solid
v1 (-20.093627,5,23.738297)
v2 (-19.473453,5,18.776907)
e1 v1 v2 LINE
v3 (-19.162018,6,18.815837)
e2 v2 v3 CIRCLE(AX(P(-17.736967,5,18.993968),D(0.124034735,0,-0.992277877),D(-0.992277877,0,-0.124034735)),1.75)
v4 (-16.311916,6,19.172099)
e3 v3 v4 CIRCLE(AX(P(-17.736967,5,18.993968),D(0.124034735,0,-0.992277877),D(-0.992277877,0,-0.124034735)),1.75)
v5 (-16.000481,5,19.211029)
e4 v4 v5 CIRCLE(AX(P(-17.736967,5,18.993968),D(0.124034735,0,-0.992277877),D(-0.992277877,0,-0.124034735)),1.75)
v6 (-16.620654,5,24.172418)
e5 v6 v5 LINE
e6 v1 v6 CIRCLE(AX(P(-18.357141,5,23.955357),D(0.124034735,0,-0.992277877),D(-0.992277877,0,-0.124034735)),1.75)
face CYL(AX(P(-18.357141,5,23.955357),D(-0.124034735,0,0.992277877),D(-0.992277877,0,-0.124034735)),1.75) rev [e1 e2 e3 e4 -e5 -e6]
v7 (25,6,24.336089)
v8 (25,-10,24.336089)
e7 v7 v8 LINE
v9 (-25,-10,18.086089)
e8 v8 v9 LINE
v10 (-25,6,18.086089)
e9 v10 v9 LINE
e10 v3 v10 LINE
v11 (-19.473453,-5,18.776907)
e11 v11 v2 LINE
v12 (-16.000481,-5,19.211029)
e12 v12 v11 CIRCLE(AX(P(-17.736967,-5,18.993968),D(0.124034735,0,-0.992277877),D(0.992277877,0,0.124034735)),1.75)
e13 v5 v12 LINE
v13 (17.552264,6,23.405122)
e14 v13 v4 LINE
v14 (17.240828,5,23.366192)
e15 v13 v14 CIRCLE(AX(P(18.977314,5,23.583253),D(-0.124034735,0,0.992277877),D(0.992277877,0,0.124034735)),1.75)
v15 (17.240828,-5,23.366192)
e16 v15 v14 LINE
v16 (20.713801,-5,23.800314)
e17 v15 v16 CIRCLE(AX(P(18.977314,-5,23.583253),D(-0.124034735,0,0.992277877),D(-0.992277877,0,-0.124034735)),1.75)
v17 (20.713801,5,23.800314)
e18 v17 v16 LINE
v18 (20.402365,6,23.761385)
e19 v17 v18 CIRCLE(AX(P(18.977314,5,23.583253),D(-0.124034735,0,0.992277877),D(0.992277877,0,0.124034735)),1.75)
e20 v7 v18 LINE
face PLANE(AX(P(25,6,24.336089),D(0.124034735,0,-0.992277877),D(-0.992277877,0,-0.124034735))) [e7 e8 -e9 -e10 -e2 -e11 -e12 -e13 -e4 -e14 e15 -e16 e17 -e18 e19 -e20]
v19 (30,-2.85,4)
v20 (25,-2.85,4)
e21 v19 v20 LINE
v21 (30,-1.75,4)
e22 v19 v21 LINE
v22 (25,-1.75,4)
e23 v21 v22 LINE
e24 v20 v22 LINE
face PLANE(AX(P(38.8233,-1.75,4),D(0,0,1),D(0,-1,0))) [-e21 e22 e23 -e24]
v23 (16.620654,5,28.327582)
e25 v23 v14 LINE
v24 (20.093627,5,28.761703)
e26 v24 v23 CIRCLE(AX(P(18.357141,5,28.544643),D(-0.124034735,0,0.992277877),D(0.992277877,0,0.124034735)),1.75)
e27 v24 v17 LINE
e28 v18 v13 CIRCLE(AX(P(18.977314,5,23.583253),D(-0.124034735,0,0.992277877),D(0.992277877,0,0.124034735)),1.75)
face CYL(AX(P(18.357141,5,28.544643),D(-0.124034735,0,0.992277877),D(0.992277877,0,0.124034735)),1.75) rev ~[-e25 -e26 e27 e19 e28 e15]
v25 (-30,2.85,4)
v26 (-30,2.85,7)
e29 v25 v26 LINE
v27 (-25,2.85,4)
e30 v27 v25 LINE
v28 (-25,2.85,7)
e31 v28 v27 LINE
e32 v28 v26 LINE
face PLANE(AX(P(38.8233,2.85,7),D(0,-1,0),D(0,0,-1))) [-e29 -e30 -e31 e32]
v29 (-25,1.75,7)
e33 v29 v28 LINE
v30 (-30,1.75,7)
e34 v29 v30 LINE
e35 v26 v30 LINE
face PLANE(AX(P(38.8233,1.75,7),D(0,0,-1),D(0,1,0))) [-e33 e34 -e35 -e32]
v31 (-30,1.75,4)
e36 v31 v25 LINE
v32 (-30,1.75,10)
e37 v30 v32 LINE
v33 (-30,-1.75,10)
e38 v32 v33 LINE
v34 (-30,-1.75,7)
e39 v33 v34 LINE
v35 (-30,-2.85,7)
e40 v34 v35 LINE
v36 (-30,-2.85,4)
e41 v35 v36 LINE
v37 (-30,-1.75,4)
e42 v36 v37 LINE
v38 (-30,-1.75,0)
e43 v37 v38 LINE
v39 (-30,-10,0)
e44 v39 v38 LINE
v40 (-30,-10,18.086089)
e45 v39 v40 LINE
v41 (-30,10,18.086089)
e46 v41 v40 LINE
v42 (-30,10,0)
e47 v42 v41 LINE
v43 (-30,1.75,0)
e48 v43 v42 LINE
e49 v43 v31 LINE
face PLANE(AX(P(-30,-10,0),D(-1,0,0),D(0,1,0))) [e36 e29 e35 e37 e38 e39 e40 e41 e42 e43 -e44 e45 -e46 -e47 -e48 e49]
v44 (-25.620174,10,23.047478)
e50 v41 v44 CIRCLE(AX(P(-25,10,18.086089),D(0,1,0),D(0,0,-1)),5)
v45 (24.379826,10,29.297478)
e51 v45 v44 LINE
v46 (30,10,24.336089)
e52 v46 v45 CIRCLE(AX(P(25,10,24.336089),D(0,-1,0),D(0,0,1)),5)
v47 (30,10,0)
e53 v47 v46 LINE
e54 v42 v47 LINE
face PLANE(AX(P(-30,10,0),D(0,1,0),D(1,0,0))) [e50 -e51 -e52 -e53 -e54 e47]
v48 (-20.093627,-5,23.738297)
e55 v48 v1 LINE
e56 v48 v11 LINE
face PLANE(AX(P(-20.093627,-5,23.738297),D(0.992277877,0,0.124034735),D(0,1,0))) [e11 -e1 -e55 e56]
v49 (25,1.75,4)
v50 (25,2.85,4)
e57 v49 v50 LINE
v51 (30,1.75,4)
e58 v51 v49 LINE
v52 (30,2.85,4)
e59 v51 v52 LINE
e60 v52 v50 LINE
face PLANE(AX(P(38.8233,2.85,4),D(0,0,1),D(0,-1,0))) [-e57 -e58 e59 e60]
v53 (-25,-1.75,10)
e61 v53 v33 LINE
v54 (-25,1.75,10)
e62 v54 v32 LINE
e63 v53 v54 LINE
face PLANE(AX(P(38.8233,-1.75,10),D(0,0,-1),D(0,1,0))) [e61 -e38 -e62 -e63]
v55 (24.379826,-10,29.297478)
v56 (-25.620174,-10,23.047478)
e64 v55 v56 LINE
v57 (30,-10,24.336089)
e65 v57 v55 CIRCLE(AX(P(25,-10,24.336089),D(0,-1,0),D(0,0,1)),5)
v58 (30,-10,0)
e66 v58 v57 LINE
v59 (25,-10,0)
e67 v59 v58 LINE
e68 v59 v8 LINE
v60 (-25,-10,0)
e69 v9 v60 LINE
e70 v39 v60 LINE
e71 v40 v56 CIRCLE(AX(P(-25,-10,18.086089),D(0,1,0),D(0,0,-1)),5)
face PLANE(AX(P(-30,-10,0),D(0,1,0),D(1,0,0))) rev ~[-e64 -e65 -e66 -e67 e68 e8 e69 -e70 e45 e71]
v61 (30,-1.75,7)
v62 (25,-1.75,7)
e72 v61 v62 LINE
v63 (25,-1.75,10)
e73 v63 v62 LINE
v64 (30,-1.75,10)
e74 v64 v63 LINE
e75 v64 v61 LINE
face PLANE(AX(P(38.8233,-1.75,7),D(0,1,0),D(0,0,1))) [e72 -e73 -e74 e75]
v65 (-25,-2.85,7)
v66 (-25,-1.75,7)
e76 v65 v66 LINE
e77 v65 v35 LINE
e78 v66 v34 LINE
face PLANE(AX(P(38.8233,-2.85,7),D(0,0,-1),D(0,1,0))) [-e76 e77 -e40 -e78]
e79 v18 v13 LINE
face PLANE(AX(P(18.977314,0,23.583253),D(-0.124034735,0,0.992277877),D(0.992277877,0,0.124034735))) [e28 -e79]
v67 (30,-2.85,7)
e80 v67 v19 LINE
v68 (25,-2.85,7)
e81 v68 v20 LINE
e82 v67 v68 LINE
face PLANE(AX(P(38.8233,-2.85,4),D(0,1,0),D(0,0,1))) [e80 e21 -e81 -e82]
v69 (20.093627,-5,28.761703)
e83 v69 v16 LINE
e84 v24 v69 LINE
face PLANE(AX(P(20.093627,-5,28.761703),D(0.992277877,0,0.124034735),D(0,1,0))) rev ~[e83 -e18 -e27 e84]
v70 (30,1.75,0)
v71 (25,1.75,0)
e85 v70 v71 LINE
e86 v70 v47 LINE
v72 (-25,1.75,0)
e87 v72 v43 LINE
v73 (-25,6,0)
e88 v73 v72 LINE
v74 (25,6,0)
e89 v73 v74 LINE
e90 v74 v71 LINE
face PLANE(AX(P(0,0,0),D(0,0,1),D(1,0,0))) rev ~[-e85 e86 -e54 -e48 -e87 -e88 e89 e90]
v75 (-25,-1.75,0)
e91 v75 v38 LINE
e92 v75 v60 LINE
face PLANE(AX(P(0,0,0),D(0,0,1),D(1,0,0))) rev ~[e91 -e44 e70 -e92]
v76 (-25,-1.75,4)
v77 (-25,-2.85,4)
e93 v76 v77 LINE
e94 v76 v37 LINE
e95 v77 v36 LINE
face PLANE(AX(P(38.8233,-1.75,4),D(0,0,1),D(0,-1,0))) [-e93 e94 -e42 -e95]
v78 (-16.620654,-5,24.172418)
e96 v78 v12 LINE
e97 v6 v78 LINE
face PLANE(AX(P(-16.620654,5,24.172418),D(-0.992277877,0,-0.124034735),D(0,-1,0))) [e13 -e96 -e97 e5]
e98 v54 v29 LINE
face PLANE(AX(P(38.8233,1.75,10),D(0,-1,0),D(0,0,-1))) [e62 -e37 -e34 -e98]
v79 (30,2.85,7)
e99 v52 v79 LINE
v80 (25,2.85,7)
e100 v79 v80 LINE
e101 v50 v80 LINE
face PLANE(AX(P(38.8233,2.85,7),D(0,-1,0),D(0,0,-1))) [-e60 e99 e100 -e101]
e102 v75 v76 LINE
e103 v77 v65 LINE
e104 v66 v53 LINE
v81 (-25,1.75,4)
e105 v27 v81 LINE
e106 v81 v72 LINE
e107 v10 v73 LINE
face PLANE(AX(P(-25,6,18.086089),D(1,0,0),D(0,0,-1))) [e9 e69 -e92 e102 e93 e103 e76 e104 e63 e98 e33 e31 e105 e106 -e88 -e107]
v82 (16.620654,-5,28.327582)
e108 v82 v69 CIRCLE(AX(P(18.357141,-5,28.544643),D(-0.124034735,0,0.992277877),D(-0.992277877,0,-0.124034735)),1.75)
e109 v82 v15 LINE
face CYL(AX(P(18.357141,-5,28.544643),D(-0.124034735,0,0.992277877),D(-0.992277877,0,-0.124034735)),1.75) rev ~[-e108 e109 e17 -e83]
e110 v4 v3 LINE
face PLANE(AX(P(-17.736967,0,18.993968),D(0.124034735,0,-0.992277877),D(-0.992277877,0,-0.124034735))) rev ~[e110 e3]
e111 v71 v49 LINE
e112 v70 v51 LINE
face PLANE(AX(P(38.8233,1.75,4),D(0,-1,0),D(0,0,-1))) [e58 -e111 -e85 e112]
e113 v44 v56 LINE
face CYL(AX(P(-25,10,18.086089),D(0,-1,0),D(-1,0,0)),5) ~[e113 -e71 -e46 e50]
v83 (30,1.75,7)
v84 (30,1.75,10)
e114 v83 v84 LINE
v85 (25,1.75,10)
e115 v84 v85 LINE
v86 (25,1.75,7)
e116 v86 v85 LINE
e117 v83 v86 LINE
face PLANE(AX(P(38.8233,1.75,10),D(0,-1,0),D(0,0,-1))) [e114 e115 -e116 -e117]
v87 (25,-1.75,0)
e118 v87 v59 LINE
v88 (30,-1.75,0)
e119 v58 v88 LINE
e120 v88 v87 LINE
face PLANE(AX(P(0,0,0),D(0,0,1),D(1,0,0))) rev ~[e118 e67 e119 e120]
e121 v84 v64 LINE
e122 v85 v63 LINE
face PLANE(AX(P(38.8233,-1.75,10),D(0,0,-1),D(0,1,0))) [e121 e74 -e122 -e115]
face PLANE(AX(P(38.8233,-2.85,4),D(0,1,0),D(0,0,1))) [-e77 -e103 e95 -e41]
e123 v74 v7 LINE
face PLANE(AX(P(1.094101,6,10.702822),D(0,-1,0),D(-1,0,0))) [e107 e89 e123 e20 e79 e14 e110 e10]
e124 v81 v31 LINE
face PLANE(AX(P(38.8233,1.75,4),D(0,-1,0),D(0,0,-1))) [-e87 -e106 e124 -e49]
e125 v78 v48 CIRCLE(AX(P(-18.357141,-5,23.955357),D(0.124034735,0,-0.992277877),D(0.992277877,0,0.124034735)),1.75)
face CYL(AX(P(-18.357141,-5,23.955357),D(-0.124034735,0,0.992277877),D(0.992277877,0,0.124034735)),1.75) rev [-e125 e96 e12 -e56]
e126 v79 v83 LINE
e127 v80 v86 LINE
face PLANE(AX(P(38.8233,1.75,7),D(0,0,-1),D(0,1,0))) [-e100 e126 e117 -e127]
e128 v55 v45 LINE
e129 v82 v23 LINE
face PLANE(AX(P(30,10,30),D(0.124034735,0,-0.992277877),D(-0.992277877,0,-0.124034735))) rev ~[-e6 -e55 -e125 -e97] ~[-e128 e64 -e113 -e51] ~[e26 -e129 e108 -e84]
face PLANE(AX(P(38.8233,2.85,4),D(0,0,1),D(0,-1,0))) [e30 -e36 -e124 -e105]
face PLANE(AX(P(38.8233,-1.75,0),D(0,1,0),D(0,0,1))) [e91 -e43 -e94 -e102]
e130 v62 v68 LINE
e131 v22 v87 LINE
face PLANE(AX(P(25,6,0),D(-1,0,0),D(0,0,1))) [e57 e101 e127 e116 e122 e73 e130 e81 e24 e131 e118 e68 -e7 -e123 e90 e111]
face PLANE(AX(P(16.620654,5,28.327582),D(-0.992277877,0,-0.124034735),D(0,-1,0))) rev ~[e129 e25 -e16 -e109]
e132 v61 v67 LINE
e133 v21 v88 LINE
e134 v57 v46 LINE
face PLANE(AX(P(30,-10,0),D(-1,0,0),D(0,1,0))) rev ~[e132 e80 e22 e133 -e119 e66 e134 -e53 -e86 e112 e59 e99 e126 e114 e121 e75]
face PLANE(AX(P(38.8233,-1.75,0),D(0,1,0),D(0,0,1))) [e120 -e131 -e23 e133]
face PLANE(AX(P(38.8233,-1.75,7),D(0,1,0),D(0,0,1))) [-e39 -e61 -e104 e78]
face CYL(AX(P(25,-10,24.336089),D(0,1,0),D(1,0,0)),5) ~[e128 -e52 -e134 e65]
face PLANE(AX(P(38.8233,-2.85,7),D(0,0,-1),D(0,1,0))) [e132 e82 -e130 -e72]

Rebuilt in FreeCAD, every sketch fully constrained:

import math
import FreeCAD as App
import Part
import Sketcher
Q = App.Units.Quantity


def edges_at(feature, points):
    """Names of the edges that pass closest to the given points."""
    edges = feature.Shape.Edges
    near = lambda p: min(range(len(edges)), key=lambda i: edges[i].distToShape(Part.Vertex(*p))[0])
    return sorted({f"Edge{near(p) + 1}" for p in points})


def add_polygon(sketch, points):
    """Adds a closed chain of lines whose ends are joined by coincident constraints."""
    first, n = sketch.GeometryCount, len(points)
    for a, b in zip(points, points[1:] + points[:1]):
        sketch.addGeometry(Part.LineSegment(App.Vector(*a, 0), App.Vector(*b, 0)), False)
    for i in range(n):
        sketch.addConstraint(Sketcher.Constraint("Coincident", first + i, 2, first + (i + 1) % n, 1))

doc = App.newDocument("Part")
body = doc.addObject("PartDesign::Body", "Body")

sketch1 = body.newObject("Sketcher::SketchObject", "Sketch")
sketch1.AttachmentSupport = (doc.getObject("XY_Plane"), [""])
sketch1.MapMode = "FlatFace"
add_polygon(sketch1, [(-30, 10), (-30, -10), (30, -10), (30, 10)])
sketch1.addConstraint(Sketcher.Constraint("Vertical", 0))
sketch1.addConstraint(Sketcher.Constraint("Horizontal", 1))
sketch1.addConstraint(Sketcher.Constraint("Vertical", 2))
sketch1.addConstraint(Sketcher.Constraint("Horizontal", 3))
sketch1.addConstraint(Sketcher.Constraint("Symmetric", 0, 2, 2, 2, -1, 1))
sketch1.addConstraint(Sketcher.Constraint("DistanceX", 1, 1, 1, 2, Q("60 mm")))
sketch1.addConstraint(Sketcher.Constraint("DistanceY", 0, 2, 0, 1, Q("20 mm")))
pad1 = body.newObject("PartDesign::Pad", "Pad")
pad1.Profile = sketch1
pad1.Length = 30

sketch2 = body.newObject("Sketcher::SketchObject", "Sketch001")
sketch2.AttachmentSupport = (doc.getObject("XZ_Plane"), [""])
sketch2.MapMode = "FlatFace"
sketch2.AttachmentOffset = App.Placement(App.Vector(0, 0, -10), App.Rotation())
add_polygon(sketch2, [(-30, 30), (30, 30), (-30, 22)])
sketch2.addConstraint(Sketcher.Constraint("Horizontal", 0))
sketch2.addConstraint(Sketcher.Constraint("Vertical", 2))
sketch2.addConstraint(Sketcher.Constraint("DistanceX", 0, 1, 0, 2, Q("60 mm")))
sketch2.addConstraint(Sketcher.Constraint("DistanceY", 2, 1, 2, 2, Q("7.5 mm")))
sketch2.addConstraint(Sketcher.Constraint("DistanceX", -1, 1, 0, 2, Q("30 mm")))
sketch2.addConstraint(Sketcher.Constraint("DistanceY", -1, 1, 0, 2, Q("30 mm")))
pocket1 = body.newObject("PartDesign::Pocket", "Pocket")
pocket1.Profile = sketch2
pocket1.Type = "ThroughAll"
pocket1.Reversed = True

sketch3 = body.newObject("Sketcher::SketchObject", "Sketch002")
sketch3.AttachmentSupport = (doc.getObject("XZ_Plane"), [""])
sketch3.MapMode = "FlatFace"
sketch3.AttachmentOffset = App.Placement(App.Vector(0, 0, -6), App.Rotation())
add_polygon(sketch3, [(25, 0), (-25, 0), (-25, 18), (25, 24)])
sketch3.addConstraint(Sketcher.Constraint("Horizontal", 0))
sketch3.addConstraint(Sketcher.Constraint("Vertical", 1))
sketch3.addConstraint(Sketcher.Constraint("Vertical", 3))
sketch3.addConstraint(Sketcher.Constraint("Symmetric", 0, 2, 3, 2, -1, 1))
sketch3.addConstraint(Sketcher.Constraint("DistanceX", 0, 2, 0, 1, Q("50 mm")))
sketch3.addConstraint(Sketcher.Constraint("DistanceY", 1, 2, 2, 2, Q("6.25 mm")))
sketch3.addConstraint(Sketcher.Constraint("DistanceY", 1, 1, 1, 2, Q("18.086089 mm")))
pocket2 = body.newObject("PartDesign::Pocket", "Pocket001")
pocket2.Profile = sketch3
pocket2.Type = "ThroughAll"
pocket2.Reversed = True

sketch4 = body.newObject("Sketcher::SketchObject", "Sketch003")
sketch4.AttachmentSupport = (doc.getObject("YZ_Plane"), [""])
sketch4.MapMode = "FlatFace"
sketch4.AttachmentOffset = App.Placement(App.Vector(0, 0, -30), App.Rotation())
add_polygon(sketch4, [(1.8, 4), (1.8, 0), (-1.8, 0), (-1.8, 4), (-2.9, 4), (-2.9, 7), (-1.8, 7), (-1.8, 10), (1.8, 10), (1.8, 7), (2.9, 7), (2.9, 4)])
sketch4.addConstraint(Sketcher.Constraint("Vertical", 0))
sketch4.addConstraint(Sketcher.Constraint("Horizontal", 1))
sketch4.addConstraint(Sketcher.Constraint("Vertical", 2))
sketch4.addConstraint(Sketcher.Constraint("Horizontal", 3))
sketch4.addConstraint(Sketcher.Constraint("Vertical", 4))
sketch4.addConstraint(Sketcher.Constraint("Horizontal", 5))
sketch4.addConstraint(Sketcher.Constraint("Vertical", 6))
sketch4.addConstraint(Sketcher.Constraint("Horizontal", 7))
sketch4.addConstraint(Sketcher.Constraint("Vertical", 8))
sketch4.addConstraint(Sketcher.Constraint("Horizontal", 9))
sketch4.addConstraint(Sketcher.Constraint("Vertical", 10))
sketch4.addConstraint(Sketcher.Constraint("Horizontal", 11))
sketch4.addConstraint(Sketcher.Constraint("Symmetric", 0, 2, 1, 2, -1, 1))
sketch4.addConstraint(Sketcher.Constraint("Symmetric", 5, 2, 8, 2, -2))
sketch4.addConstraint(Sketcher.Constraint("Symmetric", 3, 2, 10, 2, -2))
sketch4.addConstraint(Sketcher.Constraint("Vertical", 2, 2, 5, 2))
sketch4.addConstraint(Sketcher.Constraint("Equal", 4, 6))
sketch4.addConstraint(Sketcher.Constraint("DistanceY", 0, 2, 0, 1, Q("4 mm")))
sketch4.addConstraint(Sketcher.Constraint("DistanceY", 4, 1, 4, 2, Q("3 mm")))
sketch4.addConstraint(Sketcher.Constraint("DistanceX", 1, 2, 1, 1, Q("3.5 mm")))
sketch4.addConstraint(Sketcher.Constraint("DistanceX", 3, 2, 3, 1, Q("1.1 mm")))
pocket3 = body.newObject("PartDesign::Pocket", "Pocket002")
pocket3.Profile = sketch4
pocket3.Type = "ThroughAll"
pocket3.Midplane = True

sketch5 = body.newObject("Sketcher::SketchObject", "Sketch004")
sketch5.Placement = App.Placement(App.Vector(-3.230769, 0, 25.846154), App.Rotation(App.Vector(0.992277877, 0, 0.124034735), App.Vector(0, 1.000000001, 0), App.Vector(-0.124034735, 0, 0.992277877), "ZXY"))
sketch5.addGeometry(Part.Circle(App.Vector(21.8, 0, 0), App.Vector(0, 0, 1), 1.8), False)
sketch5.addGeometry(Part.Circle(App.Vector(-15.2, 0, 0), App.Vector(0, 0, 1), 1.8), False)
sketch5.addConstraint(Sketcher.Constraint("Equal", 0, 1))
sketch5.addConstraint(Sketcher.Constraint("PointOnObject", 0, 3, -1))
sketch5.addConstraint(Sketcher.Constraint("PointOnObject", 1, 3, -1))
sketch5.addConstraint(Sketcher.Constraint("Diameter", 0, Q("3.5 mm")))
sketch5.addConstraint(Sketcher.Constraint("DistanceX", 1, 3, 0, 3, Q("37 mm")))
sketch5.addConstraint(Sketcher.Constraint("DistanceX", -1, 1, 0, 3, Q("21.755912 mm")))
pocket4 = body.newObject("PartDesign::Pocket", "Pocket003")
pocket4.Profile = sketch5
pocket4.Type = "ThroughAll"

sketch6 = body.newObject("Sketcher::SketchObject", "Sketch005")
sketch6.Placement = App.Placement(App.Vector(-3.230769, 0, 25.846154), App.Rotation(App.Vector(0.992277877, 0, 0.124034735), App.Vector(0, 1.000000001, 0), App.Vector(-0.124034735, 0, 0.992277877), "ZXY"))
sketch6.addGeometry(Part.LineSegment(App.Vector(-13.5, -5, 0), App.Vector(-13.5, 5, 0)), False)
sketch6.addGeometry(Part.ArcOfCircle(Part.Circle(App.Vector(-15.2, 5, 0), App.Vector(0, 0, 1), 1.8), math.radians(0), math.radians(180)), False)
sketch6.addGeometry(Part.LineSegment(App.Vector(-17, 5, 0), App.Vector(-17, -5, 0)), False)
sketch6.addGeometry(Part.ArcOfCircle(Part.Circle(App.Vector(-15.2, -5, 0), App.Vector(0, 0, 1), 1.8), math.radians(180), math.radians(360)), False)
sketch6.addGeometry(Part.LineSegment(App.Vector(20, 5, 0), App.Vector(20, -5, 0)), False)
sketch6.addGeometry(Part.ArcOfCircle(Part.Circle(App.Vector(21.8, -5, 0), App.Vector(0, 0, 1), 1.8), math.radians(180), math.radians(360)), False)
sketch6.addGeometry(Part.LineSegment(App.Vector(23.5, -5, 0), App.Vector(23.5, 5, 0)), False)
sketch6.addGeometry(Part.ArcOfCircle(Part.Circle(App.Vector(21.8, 5, 0), App.Vector(0, 0, 1), 1.8), math.radians(0), math.radians(180)), False)
sketch6.addConstraint(Sketcher.Constraint("Tangent", 0, 2, 1, 1))
sketch6.addConstraint(Sketcher.Constraint("Tangent", 1, 2, 2, 1))
sketch6.addConstraint(Sketcher.Constraint("Tangent", 2, 2, 3, 1))
sketch6.addConstraint(Sketcher.Constraint("Tangent", 3, 2, 0, 1))
sketch6.addConstraint(Sketcher.Constraint("Tangent", 4, 2, 5, 1))
sketch6.addConstraint(Sketcher.Constraint("Tangent", 5, 2, 6, 1))
sketch6.addConstraint(Sketcher.Constraint("Tangent", 6, 2, 7, 1))
sketch6.addConstraint(Sketcher.Constraint("Tangent", 7, 2, 4, 1))
sketch6.addConstraint(Sketcher.Constraint("Vertical", 0))
sketch6.addConstraint(Sketcher.Constraint("Vertical", 2))
sketch6.addConstraint(Sketcher.Constraint("Vertical", 4))
sketch6.addConstraint(Sketcher.Constraint("Vertical", 6))
sketch6.addConstraint(Sketcher.Constraint("Equal", 3, 5))
sketch6.addConstraint(Sketcher.Constraint("Horizontal", 3, 3, 5, 3))
sketch6.addConstraint(Sketcher.Constraint("Horizontal", 1, 3, 7, 3))
sketch6.addConstraint(Sketcher.Constraint("DistanceY", 0, 1, 0, 2, Q("10 mm")))
sketch6.addConstraint(Sketcher.Constraint("Radius", 1, Q("1.75 mm")))
sketch6.addConstraint(Sketcher.Constraint("DistanceY", -1, 1, 1, 3, Q("5 mm")))
sketch6.addConstraint(Sketcher.Constraint("DistanceX", 3, 3, 5, 3, Q("37 mm")))
sketch6.addConstraint(Sketcher.Constraint("DistanceX", 1, 3, -1, 1, Q("15.244088 mm")))
pocket5 = body.newObject("PartDesign::Pocket", "Pocket004")
pocket5.Profile = sketch6
pocket5.Length = 5
doc.recompute()

fillet = body.newObject("PartDesign::Fillet", "Fillet")
fillet.Base = (pocket5, edges_at(pocket5, [(-30, 0, 22.5), (30, 0, 30)]))
fillet.Radius = 5

doc.recompute()
